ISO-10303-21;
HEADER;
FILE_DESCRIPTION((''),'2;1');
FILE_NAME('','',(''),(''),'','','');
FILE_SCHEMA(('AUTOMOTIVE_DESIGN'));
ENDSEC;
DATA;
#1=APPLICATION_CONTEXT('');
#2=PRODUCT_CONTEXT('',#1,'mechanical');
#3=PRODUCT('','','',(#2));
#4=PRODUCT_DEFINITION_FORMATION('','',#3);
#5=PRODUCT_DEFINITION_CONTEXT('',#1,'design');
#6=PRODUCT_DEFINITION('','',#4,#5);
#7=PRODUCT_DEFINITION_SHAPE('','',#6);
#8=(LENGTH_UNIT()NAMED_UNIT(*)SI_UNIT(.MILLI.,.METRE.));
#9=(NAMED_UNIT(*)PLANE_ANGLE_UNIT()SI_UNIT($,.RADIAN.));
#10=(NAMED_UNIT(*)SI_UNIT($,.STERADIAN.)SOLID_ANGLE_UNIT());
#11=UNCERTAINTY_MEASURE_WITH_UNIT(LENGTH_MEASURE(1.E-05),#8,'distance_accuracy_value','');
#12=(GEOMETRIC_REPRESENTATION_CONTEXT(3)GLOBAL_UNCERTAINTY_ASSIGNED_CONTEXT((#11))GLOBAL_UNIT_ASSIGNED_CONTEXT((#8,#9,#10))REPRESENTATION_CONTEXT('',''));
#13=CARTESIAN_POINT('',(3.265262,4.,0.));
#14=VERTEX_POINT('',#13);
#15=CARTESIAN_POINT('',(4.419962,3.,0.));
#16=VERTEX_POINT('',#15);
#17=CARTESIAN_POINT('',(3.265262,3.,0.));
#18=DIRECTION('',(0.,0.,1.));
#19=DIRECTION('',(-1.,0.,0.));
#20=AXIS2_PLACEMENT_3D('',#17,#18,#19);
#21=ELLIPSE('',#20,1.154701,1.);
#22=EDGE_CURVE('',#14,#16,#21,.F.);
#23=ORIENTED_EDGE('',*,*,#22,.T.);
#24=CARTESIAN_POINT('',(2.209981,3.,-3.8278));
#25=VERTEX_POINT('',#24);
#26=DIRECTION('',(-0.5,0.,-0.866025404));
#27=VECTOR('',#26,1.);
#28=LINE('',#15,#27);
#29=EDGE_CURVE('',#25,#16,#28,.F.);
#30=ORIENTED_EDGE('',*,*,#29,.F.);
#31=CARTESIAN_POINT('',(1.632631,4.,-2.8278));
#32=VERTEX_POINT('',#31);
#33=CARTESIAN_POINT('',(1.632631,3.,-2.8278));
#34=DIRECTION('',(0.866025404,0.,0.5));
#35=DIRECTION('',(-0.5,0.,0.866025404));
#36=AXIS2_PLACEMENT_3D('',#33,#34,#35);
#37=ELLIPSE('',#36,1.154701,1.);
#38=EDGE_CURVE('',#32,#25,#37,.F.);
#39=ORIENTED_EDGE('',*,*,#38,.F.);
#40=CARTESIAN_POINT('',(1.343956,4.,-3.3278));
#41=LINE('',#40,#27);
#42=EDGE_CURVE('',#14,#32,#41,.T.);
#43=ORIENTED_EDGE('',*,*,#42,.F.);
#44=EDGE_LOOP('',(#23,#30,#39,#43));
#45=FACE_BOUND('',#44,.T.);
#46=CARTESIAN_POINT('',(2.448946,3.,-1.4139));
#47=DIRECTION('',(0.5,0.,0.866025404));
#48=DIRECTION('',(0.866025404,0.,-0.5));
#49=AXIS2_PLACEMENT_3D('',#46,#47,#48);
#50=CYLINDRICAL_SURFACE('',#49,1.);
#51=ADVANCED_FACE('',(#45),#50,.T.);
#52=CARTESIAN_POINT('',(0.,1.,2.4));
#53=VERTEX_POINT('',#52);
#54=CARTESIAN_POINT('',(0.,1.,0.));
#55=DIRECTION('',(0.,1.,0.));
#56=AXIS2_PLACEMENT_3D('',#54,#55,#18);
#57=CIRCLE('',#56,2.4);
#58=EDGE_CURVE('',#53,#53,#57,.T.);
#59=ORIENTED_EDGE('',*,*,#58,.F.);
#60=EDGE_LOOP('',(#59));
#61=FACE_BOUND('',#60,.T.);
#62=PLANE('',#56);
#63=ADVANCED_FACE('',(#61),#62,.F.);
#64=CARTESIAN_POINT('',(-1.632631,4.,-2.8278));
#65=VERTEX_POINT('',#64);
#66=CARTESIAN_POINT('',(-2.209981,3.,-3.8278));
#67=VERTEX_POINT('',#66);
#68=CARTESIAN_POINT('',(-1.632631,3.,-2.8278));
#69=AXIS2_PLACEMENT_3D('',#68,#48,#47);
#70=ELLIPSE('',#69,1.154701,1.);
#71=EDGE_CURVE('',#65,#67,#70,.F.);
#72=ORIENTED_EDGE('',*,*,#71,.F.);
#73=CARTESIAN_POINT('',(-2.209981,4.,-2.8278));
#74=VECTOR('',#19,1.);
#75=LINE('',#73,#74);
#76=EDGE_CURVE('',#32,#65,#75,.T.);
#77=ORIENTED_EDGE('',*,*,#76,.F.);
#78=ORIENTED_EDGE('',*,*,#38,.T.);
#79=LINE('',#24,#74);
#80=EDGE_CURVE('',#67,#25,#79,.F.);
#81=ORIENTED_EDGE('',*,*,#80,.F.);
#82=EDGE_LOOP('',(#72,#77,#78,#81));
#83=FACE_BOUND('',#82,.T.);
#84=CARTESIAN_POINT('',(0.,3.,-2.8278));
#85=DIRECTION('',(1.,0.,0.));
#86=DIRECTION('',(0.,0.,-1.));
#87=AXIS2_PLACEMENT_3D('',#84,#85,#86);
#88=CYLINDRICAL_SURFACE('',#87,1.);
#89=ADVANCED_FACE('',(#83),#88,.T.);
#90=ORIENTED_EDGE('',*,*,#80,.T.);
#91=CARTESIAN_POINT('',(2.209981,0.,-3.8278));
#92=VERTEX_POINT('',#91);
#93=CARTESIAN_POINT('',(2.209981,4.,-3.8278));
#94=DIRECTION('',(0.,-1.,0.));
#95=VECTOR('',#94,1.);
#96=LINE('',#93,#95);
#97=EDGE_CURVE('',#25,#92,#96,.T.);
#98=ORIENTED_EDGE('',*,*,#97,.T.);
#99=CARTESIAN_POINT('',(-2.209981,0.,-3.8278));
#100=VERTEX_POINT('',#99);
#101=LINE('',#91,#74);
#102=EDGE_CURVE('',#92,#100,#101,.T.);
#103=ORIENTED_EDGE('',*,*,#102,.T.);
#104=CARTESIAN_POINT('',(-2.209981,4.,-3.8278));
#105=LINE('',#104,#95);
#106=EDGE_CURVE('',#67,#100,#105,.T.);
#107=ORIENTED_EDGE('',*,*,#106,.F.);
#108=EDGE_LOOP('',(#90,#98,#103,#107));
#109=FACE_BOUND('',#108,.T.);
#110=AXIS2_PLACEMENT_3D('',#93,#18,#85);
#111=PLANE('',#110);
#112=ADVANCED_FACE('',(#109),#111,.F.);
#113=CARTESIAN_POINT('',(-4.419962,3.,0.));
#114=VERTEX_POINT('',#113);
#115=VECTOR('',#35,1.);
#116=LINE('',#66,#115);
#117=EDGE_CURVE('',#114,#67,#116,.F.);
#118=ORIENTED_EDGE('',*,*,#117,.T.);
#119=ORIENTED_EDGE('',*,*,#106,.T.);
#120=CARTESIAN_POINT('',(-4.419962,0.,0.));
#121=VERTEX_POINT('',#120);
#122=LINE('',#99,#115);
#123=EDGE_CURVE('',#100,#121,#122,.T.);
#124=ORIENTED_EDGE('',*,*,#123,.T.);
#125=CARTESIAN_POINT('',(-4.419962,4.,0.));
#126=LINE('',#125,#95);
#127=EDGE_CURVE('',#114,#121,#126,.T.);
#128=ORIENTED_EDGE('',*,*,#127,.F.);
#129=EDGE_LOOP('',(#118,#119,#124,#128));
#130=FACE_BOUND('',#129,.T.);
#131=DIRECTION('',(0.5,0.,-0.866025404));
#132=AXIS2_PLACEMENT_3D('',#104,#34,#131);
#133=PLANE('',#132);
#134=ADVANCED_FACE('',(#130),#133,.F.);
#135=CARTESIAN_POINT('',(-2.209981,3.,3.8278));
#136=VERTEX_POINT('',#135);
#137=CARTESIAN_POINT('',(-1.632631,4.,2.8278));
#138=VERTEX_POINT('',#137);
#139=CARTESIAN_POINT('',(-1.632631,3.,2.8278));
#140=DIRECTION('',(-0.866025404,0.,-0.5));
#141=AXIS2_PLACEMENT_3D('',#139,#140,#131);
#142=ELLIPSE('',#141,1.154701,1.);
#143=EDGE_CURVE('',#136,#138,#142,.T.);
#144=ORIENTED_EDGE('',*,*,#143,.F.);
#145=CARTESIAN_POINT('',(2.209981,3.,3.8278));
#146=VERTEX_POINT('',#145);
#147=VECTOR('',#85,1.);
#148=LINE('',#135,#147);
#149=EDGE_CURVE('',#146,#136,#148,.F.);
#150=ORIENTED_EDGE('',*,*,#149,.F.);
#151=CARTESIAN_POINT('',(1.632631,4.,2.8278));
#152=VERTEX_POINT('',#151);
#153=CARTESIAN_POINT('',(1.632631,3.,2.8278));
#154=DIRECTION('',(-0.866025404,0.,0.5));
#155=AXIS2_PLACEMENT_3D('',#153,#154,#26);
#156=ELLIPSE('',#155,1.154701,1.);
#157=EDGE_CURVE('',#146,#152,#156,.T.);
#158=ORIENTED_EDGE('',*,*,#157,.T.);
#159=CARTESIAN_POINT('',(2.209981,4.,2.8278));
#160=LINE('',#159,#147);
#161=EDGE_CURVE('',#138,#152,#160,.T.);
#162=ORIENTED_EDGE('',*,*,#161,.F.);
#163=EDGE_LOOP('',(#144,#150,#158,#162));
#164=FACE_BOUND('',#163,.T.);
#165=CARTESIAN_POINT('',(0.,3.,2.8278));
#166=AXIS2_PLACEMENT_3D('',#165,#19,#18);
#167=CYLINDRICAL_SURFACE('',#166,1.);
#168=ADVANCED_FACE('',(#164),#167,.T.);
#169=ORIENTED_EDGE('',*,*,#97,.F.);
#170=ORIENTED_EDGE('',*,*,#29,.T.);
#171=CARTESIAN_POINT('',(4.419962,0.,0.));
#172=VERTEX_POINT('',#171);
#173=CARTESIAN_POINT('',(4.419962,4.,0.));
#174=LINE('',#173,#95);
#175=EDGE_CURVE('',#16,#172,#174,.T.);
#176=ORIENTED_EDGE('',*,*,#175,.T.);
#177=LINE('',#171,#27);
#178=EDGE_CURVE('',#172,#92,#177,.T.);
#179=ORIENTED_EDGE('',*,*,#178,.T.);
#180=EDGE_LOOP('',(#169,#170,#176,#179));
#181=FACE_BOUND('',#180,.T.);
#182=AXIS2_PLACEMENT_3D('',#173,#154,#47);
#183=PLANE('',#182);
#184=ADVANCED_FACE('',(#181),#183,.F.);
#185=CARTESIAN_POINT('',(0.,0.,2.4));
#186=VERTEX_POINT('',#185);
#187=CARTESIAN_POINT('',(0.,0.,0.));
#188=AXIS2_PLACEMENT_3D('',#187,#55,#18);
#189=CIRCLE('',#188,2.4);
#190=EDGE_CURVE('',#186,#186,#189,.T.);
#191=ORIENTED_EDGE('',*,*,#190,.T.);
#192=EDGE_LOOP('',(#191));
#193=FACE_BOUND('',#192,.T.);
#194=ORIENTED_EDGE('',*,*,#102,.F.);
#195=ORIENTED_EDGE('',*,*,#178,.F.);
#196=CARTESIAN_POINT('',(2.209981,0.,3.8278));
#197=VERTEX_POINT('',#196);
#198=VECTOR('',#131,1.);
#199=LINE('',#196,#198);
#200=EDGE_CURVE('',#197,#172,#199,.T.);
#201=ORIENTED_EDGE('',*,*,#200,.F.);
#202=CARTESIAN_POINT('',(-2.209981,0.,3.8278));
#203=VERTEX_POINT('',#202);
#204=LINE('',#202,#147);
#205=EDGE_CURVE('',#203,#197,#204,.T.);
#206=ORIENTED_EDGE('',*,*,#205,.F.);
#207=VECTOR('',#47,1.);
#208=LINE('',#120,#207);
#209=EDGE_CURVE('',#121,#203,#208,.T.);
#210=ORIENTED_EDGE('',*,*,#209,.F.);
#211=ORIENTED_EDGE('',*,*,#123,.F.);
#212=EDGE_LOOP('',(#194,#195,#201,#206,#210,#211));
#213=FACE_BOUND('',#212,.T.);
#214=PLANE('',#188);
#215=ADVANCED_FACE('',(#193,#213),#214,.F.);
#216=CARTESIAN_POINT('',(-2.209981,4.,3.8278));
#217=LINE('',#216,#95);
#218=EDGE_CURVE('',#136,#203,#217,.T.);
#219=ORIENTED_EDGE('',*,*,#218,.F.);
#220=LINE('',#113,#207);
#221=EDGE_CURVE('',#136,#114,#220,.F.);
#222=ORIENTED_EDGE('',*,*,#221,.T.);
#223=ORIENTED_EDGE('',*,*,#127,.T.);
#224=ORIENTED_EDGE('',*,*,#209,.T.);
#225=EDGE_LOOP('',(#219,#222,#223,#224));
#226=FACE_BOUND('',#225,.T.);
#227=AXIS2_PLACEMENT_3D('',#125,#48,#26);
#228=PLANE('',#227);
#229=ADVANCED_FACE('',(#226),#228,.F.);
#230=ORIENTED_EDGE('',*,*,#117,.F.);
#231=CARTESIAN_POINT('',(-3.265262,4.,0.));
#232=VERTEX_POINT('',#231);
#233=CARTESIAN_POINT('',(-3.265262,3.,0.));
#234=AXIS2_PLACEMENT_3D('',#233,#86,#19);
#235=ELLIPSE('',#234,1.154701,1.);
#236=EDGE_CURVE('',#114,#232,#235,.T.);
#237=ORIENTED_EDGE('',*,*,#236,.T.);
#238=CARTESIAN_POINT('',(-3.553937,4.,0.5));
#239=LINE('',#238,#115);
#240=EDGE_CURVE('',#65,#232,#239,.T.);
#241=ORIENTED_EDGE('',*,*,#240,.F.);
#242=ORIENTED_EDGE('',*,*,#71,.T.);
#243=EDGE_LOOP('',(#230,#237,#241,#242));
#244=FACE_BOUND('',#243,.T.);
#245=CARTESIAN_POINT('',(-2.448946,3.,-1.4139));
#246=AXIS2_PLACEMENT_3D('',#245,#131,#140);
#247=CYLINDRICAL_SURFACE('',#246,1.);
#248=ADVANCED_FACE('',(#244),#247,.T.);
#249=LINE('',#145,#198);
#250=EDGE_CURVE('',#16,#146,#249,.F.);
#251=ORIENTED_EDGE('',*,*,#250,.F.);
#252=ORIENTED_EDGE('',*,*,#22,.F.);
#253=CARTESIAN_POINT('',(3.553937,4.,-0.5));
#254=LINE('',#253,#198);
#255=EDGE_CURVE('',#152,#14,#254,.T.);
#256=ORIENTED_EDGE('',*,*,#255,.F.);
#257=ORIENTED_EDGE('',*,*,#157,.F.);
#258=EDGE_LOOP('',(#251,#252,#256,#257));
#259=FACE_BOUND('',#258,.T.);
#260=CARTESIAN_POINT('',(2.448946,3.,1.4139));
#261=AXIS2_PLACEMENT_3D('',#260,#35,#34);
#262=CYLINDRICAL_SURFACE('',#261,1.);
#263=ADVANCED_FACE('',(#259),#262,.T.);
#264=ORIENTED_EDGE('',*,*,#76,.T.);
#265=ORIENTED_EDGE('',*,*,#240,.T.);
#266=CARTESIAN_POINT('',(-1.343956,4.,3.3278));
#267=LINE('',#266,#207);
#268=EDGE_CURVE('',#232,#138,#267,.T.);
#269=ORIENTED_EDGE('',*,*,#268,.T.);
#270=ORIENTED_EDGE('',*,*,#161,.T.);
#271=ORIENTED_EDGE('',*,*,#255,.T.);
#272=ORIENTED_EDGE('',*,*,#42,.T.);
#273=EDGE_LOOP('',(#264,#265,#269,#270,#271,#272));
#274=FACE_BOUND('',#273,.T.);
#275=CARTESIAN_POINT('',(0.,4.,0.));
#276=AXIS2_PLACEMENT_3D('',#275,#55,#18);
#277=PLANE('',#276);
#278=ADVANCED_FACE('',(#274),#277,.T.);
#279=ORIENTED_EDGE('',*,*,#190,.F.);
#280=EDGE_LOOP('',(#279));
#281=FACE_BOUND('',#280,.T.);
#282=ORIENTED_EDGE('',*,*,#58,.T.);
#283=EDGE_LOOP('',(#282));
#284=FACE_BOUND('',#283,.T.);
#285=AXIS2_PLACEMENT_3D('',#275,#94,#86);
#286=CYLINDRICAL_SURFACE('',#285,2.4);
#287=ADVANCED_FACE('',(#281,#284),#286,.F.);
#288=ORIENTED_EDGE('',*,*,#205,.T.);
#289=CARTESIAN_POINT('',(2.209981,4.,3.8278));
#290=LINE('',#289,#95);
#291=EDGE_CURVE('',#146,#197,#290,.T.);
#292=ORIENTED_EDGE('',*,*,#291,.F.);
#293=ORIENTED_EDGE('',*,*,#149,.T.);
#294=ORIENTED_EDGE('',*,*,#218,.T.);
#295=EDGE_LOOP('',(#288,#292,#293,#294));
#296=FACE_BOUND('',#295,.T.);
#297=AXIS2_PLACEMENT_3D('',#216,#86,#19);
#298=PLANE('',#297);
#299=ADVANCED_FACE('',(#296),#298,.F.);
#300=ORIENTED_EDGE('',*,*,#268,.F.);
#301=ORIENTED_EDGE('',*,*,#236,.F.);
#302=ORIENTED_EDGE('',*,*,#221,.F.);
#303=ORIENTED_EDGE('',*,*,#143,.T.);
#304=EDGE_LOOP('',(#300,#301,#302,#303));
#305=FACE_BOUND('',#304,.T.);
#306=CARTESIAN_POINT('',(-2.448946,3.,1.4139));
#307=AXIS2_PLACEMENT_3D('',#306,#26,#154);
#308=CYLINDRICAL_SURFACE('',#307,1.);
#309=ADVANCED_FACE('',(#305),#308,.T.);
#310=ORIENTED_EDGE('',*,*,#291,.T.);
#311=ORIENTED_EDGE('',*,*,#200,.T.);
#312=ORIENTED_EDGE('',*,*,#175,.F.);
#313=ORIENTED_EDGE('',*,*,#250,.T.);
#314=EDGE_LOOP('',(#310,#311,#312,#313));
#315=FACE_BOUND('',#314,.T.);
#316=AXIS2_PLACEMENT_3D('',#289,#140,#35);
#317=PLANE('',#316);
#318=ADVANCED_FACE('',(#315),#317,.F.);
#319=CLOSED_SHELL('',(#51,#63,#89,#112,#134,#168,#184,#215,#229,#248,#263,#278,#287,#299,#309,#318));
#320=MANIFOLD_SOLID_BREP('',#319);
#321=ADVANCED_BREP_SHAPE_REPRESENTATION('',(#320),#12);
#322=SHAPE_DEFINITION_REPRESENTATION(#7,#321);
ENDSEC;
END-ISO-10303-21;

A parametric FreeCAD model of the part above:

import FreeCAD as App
import Part
import Sketcher
Q = App.Units.Quantity


def edges_at(feature, points):
    """Names of the edges that pass closest to the given points."""
    edges = feature.Shape.Edges
    near = lambda p: min(range(len(edges)), key=lambda i: edges[i].distToShape(Part.Vertex(*p))[0])
    return sorted({f"Edge{near(p) + 1}" for p in points})


def add_polygon(sketch, points):
    """Adds a closed chain of lines whose ends are joined by coincident constraints."""
    first, n = sketch.GeometryCount, len(points)
    for a, b in zip(points, points[1:] + points[:1]):
        sketch.addGeometry(Part.LineSegment(App.Vector(*a, 0), App.Vector(*b, 0)), False)
    for i in range(n):
        sketch.addConstraint(Sketcher.Constraint("Coincident", first + i, 2, first + (i + 1) % n, 1))

doc = App.newDocument("Part")
body = doc.addObject("PartDesign::Body", "Body")

# Sketch on XZ plane
sketch1 = doc.addObject("Sketcher::SketchObject", "Sketch")
body.addObject(sketch1)
sketch1.AttachmentSupport = (doc.XZ_Plane, [""])
sketch1.MapMode = "FlatFace"
add_polygon(sketch1, [(-4.419962, 0), (-2.209981, 3.8278), (2.209981, 3.8278), (4.419962, 0), (2.209981, -3.8278), (-2.209981, -3.8278)])  # lines 0-5
sketch1.addGeometry(Part.Circle(App.Vector(0, 0, 0), App.Vector(0, 0, 1), 2.4), False)  # 6
sketch1.addConstraint([
    Sketcher.Constraint("Horizontal", 1),
    Sketcher.Constraint("Horizontal", 4),
    Sketcher.Constraint("Coincident", 6, 3, -1, 1),
    Sketcher.Constraint("Symmetric", 0, 2, 3, 2, -1, 1),
    Sketcher.Constraint("Symmetric", 2, 2, 5, 2, -1, 1),
    Sketcher.Constraint("PointOnObject", 2, 2, -1),
    Sketcher.Constraint("Parallel", 2, 5),
    Sketcher.Constraint("Vertical", 1, 2, 3, 2),
    Sketcher.Constraint("Diameter", 6, Q("4.8 mm")),
    Sketcher.Constraint("Angle", 0, Q("60 deg")),
    Sketcher.Constraint("DistanceY", -1, 1, 0, 2, Q("3.8278 mm")),
    Sketcher.Constraint("DistanceX", 1, 1, 1, 2, Q("4.419962 mm")),
])
pad1 = doc.addObject("PartDesign::Pad", "Pad")
body.addObject(pad1)
pad1.Profile = sketch1
pad1.Length = 4
pad1.Reversed = True
doc.recompute()

fillet = doc.addObject("PartDesign::Fillet", "Fillet")
body.addObject(fillet)
fillet.Base = (pad1, edges_at(pad1, [
    (0, 4, 3.828),
    (3.315, 4, 1.914),
    (3.315, 4, -1.914),
    (0, 4, -3.828),
    (-3.315, 4, -1.914),
    (-3.315, 4, 1.914),
]))
fillet.Radius = 1

# Sketch on XZ plane
sketch2 = doc.addObject("Sketcher::SketchObject", "Sketch001")
body.addObject(sketch2)
sketch2.AttachmentSupport = (doc.XZ_Plane, [""])
sketch2.MapMode = "FlatFace"
sketch2.AttachmentOffset = App.Placement(App.Vector(0, 0, -1), App.Rotation())
sketch2.addGeometry(Part.Circle(App.Vector(0, 0, 0), App.Vector(0, 0, 1), 2.4), False)
sketch2.addConstraint([
    Sketcher.Constraint("Coincident", 0, 3, -1, 1),
    Sketcher.Constraint("Diameter", 0, Q("4.8 mm")),
])
pad2 = doc.addObject("PartDesign::Pad", "Pad001")
body.addObject(pad2)
pad2.Profile = sketch2
pad2.Length = 3
pad2.Reversed = True

doc.recompute()
